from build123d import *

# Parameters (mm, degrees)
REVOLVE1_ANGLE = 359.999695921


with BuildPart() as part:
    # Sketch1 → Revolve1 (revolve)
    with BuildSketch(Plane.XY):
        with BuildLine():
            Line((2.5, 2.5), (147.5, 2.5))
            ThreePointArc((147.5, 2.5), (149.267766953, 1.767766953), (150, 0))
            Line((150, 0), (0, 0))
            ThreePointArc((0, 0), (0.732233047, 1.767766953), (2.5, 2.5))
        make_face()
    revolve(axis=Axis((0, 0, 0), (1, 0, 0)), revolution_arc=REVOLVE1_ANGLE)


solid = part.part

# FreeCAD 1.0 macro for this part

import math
import FreeCAD as App
import Part
import Sketcher
from FreeCAD import Vector

doc = App.newDocument("Part")
body = doc.addObject("PartDesign::Body", "Body")

sketch1 = doc.addObject("Sketcher::SketchObject", "Sketch")
body.addObject(sketch1)
sketch1.AttachmentSupport = (doc.XY_Plane, [""])
sketch1.MapMode = "FlatFace"
sketch1.addGeometry([
    Part.LineSegment(Vector(147.5, 2.5, 0), Vector(2.5, 2.5, 0)),
    Part.ArcOfCircle(Part.Circle(Vector(2.5, 0, 0), Vector(0, 0, 1), 2.5), math.radians(90), math.radians(180)),
    Part.LineSegment(Vector(0, 0, 0), Vector(150, 0, 0)),
    Part.ArcOfCircle(Part.Circle(Vector(147.5, 0, 0), Vector(0, 0, 1), 2.5), math.radians(0), math.radians(90)),
], False)
sketch1.addConstraint([
    Sketcher.Constraint("Tangent", 0, 2, 1, 1),
    Sketcher.Constraint("Coincident", 1, 2, 2, 1),
    Sketcher.Constraint("Coincident", 2, 2, 3, 1),
    Sketcher.Constraint("Tangent", 3, 2, 0, 1),
    Sketcher.Constraint("Horizontal", 0),
    Sketcher.Constraint("Horizontal", 2),
    Sketcher.Constraint("Coincident", 1, 2, -1, 1),
    Sketcher.Constraint("Equal", 1, 3),
    Sketcher.Constraint("PointOnObject", 1, 3, -1),
    Sketcher.Constraint("Radius", 1, 2.5),
    Sketcher.Constraint("DistanceX", 0, 2, 0, 1, 145.0),
])
revolution = doc.addObject("PartDesign::Revolution", "Revolution")
body.addObject(revolution)
revolution.Profile = sketch1
revolution.ReferenceAxis = (sketch1, ["H_Axis"])
revolution.Angle = 359.999696

doc.recompute()
